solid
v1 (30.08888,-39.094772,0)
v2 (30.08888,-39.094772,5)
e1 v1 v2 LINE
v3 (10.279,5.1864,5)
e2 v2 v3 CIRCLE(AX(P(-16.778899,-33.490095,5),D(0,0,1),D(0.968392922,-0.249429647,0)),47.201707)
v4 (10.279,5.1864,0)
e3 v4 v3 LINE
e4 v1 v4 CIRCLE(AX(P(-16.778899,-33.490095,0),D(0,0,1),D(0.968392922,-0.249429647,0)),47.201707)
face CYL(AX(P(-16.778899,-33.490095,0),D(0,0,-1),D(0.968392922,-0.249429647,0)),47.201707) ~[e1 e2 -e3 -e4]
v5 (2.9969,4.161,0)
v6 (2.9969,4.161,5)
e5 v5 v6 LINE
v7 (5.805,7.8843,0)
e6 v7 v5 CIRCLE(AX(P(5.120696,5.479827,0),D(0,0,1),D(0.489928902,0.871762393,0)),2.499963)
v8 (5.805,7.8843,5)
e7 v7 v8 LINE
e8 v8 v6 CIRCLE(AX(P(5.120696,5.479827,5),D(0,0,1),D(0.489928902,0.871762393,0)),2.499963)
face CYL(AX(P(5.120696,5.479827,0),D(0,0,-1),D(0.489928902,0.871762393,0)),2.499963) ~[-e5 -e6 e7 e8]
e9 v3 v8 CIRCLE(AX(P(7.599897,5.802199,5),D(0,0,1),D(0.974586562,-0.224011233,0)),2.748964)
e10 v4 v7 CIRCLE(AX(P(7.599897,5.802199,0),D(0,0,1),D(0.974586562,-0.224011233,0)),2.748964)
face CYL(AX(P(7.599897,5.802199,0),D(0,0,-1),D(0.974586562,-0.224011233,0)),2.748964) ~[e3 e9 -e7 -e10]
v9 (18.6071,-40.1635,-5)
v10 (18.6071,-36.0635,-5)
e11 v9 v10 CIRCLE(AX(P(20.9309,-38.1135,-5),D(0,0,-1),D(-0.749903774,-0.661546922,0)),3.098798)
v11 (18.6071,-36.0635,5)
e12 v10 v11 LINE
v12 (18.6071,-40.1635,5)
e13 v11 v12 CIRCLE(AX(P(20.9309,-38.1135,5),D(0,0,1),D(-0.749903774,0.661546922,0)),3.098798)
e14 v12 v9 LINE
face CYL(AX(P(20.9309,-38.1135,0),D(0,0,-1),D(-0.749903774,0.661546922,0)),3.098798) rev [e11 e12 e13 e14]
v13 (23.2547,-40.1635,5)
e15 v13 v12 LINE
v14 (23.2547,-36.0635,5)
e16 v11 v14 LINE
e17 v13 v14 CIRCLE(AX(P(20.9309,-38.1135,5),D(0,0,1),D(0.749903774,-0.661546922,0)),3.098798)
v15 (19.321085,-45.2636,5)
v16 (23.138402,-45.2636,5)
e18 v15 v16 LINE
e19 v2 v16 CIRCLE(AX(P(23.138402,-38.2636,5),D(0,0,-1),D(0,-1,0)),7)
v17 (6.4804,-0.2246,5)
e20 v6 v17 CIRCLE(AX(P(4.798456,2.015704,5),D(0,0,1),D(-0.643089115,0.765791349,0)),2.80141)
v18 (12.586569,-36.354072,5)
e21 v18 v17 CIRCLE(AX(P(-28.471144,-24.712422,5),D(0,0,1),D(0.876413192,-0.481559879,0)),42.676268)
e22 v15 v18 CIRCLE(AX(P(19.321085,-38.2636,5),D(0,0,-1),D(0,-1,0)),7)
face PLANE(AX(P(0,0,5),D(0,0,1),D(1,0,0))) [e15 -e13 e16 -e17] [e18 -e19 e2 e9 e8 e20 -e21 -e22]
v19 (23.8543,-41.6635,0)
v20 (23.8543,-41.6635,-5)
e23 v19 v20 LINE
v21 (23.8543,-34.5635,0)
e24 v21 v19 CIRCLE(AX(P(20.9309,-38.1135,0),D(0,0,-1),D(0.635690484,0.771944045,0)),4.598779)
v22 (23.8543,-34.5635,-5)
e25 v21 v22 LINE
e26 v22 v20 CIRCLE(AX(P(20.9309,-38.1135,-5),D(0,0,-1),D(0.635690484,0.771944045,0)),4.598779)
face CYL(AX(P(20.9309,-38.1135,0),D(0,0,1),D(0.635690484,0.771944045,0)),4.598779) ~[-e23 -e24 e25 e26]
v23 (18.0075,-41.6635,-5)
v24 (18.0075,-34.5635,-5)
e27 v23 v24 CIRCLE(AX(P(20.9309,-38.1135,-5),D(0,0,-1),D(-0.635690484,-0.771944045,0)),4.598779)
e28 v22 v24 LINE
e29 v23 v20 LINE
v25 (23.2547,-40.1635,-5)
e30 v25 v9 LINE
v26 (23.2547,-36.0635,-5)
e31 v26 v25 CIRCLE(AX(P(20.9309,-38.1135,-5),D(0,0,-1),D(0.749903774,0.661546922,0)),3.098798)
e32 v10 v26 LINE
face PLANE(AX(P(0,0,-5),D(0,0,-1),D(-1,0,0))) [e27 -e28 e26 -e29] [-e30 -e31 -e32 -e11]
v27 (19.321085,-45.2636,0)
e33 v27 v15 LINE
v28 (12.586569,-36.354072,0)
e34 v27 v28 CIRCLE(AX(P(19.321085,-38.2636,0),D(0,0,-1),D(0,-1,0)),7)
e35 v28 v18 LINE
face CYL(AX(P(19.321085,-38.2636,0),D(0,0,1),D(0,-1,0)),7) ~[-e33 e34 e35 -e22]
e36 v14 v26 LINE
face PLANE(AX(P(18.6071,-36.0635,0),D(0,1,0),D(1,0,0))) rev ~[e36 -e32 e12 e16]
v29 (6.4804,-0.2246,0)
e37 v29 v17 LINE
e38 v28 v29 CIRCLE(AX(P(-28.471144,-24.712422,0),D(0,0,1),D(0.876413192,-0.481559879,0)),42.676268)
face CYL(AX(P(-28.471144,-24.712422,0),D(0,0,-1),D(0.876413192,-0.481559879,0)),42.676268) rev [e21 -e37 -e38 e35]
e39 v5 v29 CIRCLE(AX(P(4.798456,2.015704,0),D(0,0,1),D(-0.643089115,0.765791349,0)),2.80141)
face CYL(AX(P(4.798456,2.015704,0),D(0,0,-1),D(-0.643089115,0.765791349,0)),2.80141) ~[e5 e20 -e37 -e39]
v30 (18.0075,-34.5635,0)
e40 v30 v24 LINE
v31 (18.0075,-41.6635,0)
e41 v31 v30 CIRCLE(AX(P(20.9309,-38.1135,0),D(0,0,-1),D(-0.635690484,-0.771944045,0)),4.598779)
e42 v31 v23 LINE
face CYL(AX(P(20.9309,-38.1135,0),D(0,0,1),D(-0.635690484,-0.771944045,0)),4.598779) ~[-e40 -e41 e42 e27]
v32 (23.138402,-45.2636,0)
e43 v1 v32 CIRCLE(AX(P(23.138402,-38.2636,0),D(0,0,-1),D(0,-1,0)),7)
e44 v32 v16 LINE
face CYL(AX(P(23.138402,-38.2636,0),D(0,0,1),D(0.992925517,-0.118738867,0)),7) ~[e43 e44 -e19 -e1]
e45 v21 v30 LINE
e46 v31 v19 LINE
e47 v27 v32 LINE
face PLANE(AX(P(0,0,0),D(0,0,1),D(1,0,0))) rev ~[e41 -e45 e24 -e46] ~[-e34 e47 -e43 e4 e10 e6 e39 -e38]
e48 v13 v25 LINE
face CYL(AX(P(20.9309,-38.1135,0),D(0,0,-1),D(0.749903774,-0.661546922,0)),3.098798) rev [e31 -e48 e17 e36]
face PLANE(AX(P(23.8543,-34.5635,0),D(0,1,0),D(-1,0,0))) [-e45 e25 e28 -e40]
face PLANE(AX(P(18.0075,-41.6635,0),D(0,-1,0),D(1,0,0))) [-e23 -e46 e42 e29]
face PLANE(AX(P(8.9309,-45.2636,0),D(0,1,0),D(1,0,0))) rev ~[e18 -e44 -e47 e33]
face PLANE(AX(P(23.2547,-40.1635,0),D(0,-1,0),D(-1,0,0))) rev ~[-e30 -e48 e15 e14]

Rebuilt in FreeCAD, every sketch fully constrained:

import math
import FreeCAD as App
import Part
import Sketcher

V = App.Vector


def edges_at(feature, points):
    """Names of the edges that pass closest to the given points."""
    edges = feature.Shape.Edges
    near = lambda p: min(range(len(edges)), key=lambda i: edges[i].distToShape(Part.Vertex(*p))[0])
    return sorted({f"Edge{near(p) + 1}" for p in points})

doc = App.newDocument("Part")
body = doc.addObject("PartDesign::Body", "Body")

sketch1 = body.newObject("Sketcher::SketchObject", "Sketch")
sketch1.AttachmentSupport = (doc.getObject("XY_Plane"), [""])
sketch1.MapMode = "FlatFace"
sketch1.addGeometry(Part.ArcOfCircle(Part.Circle(V(7.5999, 5.8022, 0), V(0, 0, 1), 2.748961), math.radians(-12.944782), math.radians(130.763387)), False)
sketch1.addGeometry(Part.ArcOfCircle(Part.Circle(V(5.1207, 5.4798, 0), V(0, 0, 1), 2.499984), math.radians(74.114103), math.radians(211.838727)), False)
sketch1.addGeometry(Part.ArcOfCircle(Part.Circle(V(4.7985, 2.0157, 0), V(0, 0, 1), 2.801442), math.radians(130.023181), math.radians(306.897304)), False)
sketch1.addGeometry(Part.ArcOfCircle(Part.Circle(V(-28.4708, -24.7125, 0), V(0, 0, 1), 42.675929), math.radians(-28.78746), math.radians(35.016284)), False)
sketch1.addGeometry(Part.LineSegment(V(8.9309, -45.2636, 0), V(28.9309, -45.2636, 0)), False)
sketch1.addGeometry(Part.ArcOfCircle(Part.Circle(V(-16.779, -33.4901, 0), V(0, 0, 1), 47.201804), math.radians(-14.443728), math.radians(55.023443)), False)
sketch1.addGeometry(Part.ArcOfCircle(Part.Circle(V(20.9309, -38.1135, 0), V(0, 0, 1), 3.098798), math.radians(138.582043), math.radians(221.417957)), False)
sketch1.addGeometry(Part.LineSegment(V(18.6071, -36.0635, 0), V(23.2547, -36.0635, 0)), False)
sketch1.addGeometry(Part.ArcOfCircle(Part.Circle(V(20.9309, -38.1135, 0), V(0, 0, 1), 3.098798), math.radians(-41.417957), math.radians(41.417957)), False)
sketch1.addGeometry(Part.LineSegment(V(23.2547, -40.1635, 0), V(18.6071, -40.1635, 0)), False)
sketch1.addConstraint(Sketcher.Constraint("Coincident", 0, 2, 1, 1))
sketch1.addConstraint(Sketcher.Constraint("Coincident", 1, 2, 2, 1))
sketch1.addConstraint(Sketcher.Constraint("Coincident", 2, 2, 3, 2))
sketch1.addConstraint(Sketcher.Constraint("Coincident", 3, 1, 4, 1))
sketch1.addConstraint(Sketcher.Constraint("Coincident", 4, 2, 5, 1))
sketch1.addConstraint(Sketcher.Constraint("Coincident", 5, 2, 0, 1))
sketch1.addConstraint(Sketcher.Constraint("Coincident", 6, 1, 7, 1))
sketch1.addConstraint(Sketcher.Constraint("Coincident", 7, 2, 8, 2))
sketch1.addConstraint(Sketcher.Constraint("Coincident", 8, 1, 9, 1))
sketch1.addConstraint(Sketcher.Constraint("Coincident", 9, 2, 6, 2))
sketch1.addConstraint(Sketcher.Constraint("Horizontal", 4))
sketch1.addConstraint(Sketcher.Constraint("Horizontal", 7))
sketch1.addConstraint(Sketcher.Constraint("Horizontal", 9))
sketch1.addConstraint(Sketcher.Constraint("Coincident", 8, 3, 6, 3))
sketch1.addConstraint(Sketcher.Constraint("Equal", 6, 8))
sketch1.addConstraint(Sketcher.Constraint("Vertical", 7, 2, 8, 1))
sketch1.addConstraint(Sketcher.Constraint("Radius", 1, 2.5))
sketch1.addConstraint(Sketcher.Constraint("DistanceX", 4, 1, 4, 2, 20.0))
sketch1.addConstraint(Sketcher.Constraint("DistanceX", 6, 3, 4, 2, 8.0))
sketch1.addConstraint(Sketcher.Constraint("DistanceY", 3, 1, 6, 3, 7.15))
sketch1.addConstraint(Sketcher.Constraint("Radius", 0, 2.749))
sketch1.addConstraint(Sketcher.Constraint("Radius", 3, 42.676))
sketch1.addConstraint(Sketcher.Constraint("DistanceX", -1, 1, 0, 3, 7.6))
sketch1.addConstraint(Sketcher.Constraint("Radius", 2, 2.8014))
sketch1.addConstraint(Sketcher.Constraint("Radius", 5, 47.2018))
sketch1.addConstraint(Sketcher.Constraint("Radius", 6, 3.0988))
sketch1.addConstraint(Sketcher.Constraint("DistanceY", 3, 1, 6, 1, 9.2))
sketch1.addConstraint(Sketcher.Constraint("DistanceY", 5, 3, -1, 1, 33.49))
sketch1.addConstraint(Sketcher.Constraint("DistanceY", 5, 3, 1, 3, 38.97))
sketch1.addConstraint(Sketcher.Constraint("DistanceX", 5, 3, 6, 3, 37.71))
sketch1.addConstraint(Sketcher.Constraint("DistanceX", 5, 3, -1, 1, 16.779))
sketch1.addConstraint(Sketcher.Constraint("DistanceX", -1, 1, 0, 2, 5.805))
sketch1.addConstraint(Sketcher.Constraint("DistanceY", -1, 1, 1, 2, 4.161))
sketch1.addConstraint(Sketcher.Constraint("DistanceY", 2, 3, 1, 3, 3.464))
sketch1.addConstraint(Sketcher.Constraint("DistanceY", 6, 3, 3, 3, 13.401))
sketch1.addConstraint(Sketcher.Constraint("DistanceX", 1, 2, 0, 3, 4.603))
pad1 = body.newObject("PartDesign::Pad", "Pad")
pad1.Profile = sketch1
pad1.Length = 5

sketch2 = body.newObject("Sketcher::SketchObject", "Sketch001")
sketch2.AttachmentSupport = (doc.getObject("XY_Plane"), [""])
sketch2.MapMode = "FlatFace"
sketch2.addGeometry(Part.LineSegment(V(18.0075, -34.5635, 0), V(23.8543, -34.5635, 0)), False)
sketch2.addGeometry(Part.ArcOfCircle(Part.Circle(V(20.9309, -38.1135, 0), V(0, 0, 1), 4.598779), math.radians(-50.528785), math.radians(50.528785)), False)
sketch2.addGeometry(Part.LineSegment(V(23.8543, -41.6635, 0), V(18.0075, -41.6635, 0)), False)
sketch2.addGeometry(Part.ArcOfCircle(Part.Circle(V(20.9309, -38.1135, 0), V(0, 0, 1), 4.598779), math.radians(129.471215), math.radians(230.528785)), False)
sketch2.addGeometry(Part.LineSegment(V(23.2547, -36.0635, 0), V(18.6071, -36.0635, 0)), False)
sketch2.addGeometry(Part.ArcOfCircle(Part.Circle(V(20.9309, -38.1135, 0), V(0, 0, 1), 3.098798), math.radians(138.582043), math.radians(221.417957)), False)
sketch2.addGeometry(Part.LineSegment(V(18.6071, -40.1635, 0), V(23.2547, -40.1635, 0)), False)
sketch2.addGeometry(Part.ArcOfCircle(Part.Circle(V(20.9309, -38.1135, 0), V(0, 0, 1), 3.098798), math.radians(-41.417957), math.radians(41.417957)), False)
sketch2.addConstraint(Sketcher.Constraint("Coincident", 0, 2, 1, 2))
sketch2.addConstraint(Sketcher.Constraint("Coincident", 1, 1, 2, 1))
sketch2.addConstraint(Sketcher.Constraint("Coincident", 2, 2, 3, 2))
sketch2.addConstraint(Sketcher.Constraint("Coincident", 3, 1, 0, 1))
sketch2.addConstraint(Sketcher.Constraint("Coincident", 4, 2, 5, 1))
sketch2.addConstraint(Sketcher.Constraint("Coincident", 5, 2, 6, 1))
sketch2.addConstraint(Sketcher.Constraint("Coincident", 6, 2, 7, 1))
sketch2.addConstraint(Sketcher.Constraint("Coincident", 7, 2, 4, 1))
sketch2.addConstraint(Sketcher.Constraint("Horizontal", 0))
sketch2.addConstraint(Sketcher.Constraint("Horizontal", 2))
sketch2.addConstraint(Sketcher.Constraint("Horizontal", 4))
sketch2.addConstraint(Sketcher.Constraint("Horizontal", 6))
sketch2.addConstraint(Sketcher.Constraint("Coincident", 3, 3, 1, 3))
sketch2.addConstraint(Sketcher.Constraint("Coincident", 5, 3, 1, 3))
sketch2.addConstraint(Sketcher.Constraint("Coincident", 7, 3, 1, 3))
sketch2.addConstraint(Sketcher.Constraint("Equal", 1, 3))
sketch2.addConstraint(Sketcher.Constraint("Equal", 5, 7))
sketch2.addConstraint(Sketcher.Constraint("Vertical", 0, 2, 1, 1))
sketch2.addConstraint(Sketcher.Constraint("Vertical", 4, 2, 5, 2))
sketch2.addConstraint(Sketcher.Constraint("DistanceY", 4, 2, 3, 1, 1.5))
sketch2.addConstraint(Sketcher.Constraint("Radius", 1, 4.5988))
sketch2.addConstraint(Sketcher.Constraint("Radius", 5, 3.0988))
sketch2.addConstraint(Sketcher.Constraint("DistanceY", 1, 1, 0, 2, 7.1))
sketch2.addConstraint(Sketcher.Constraint("DistanceX", -1, 1, 1, 3, 20.931))
sketch2.addConstraint(Sketcher.Constraint("DistanceY", 1, 3, -1, 1, 38.1135))
pad2 = body.newObject("PartDesign::Pad", "Pad001")
pad2.Profile = sketch2
pad2.Length = 5
pad2.Reversed = True
doc.recompute()

fillet = body.newObject("PartDesign::Fillet", "Fillet")
fillet.Base = (pad2, edges_at(pad2, [(8.931, -45.264, 2.5), (28.931, -45.264, 2.5)]))
fillet.Radius = 7

doc.recompute()
